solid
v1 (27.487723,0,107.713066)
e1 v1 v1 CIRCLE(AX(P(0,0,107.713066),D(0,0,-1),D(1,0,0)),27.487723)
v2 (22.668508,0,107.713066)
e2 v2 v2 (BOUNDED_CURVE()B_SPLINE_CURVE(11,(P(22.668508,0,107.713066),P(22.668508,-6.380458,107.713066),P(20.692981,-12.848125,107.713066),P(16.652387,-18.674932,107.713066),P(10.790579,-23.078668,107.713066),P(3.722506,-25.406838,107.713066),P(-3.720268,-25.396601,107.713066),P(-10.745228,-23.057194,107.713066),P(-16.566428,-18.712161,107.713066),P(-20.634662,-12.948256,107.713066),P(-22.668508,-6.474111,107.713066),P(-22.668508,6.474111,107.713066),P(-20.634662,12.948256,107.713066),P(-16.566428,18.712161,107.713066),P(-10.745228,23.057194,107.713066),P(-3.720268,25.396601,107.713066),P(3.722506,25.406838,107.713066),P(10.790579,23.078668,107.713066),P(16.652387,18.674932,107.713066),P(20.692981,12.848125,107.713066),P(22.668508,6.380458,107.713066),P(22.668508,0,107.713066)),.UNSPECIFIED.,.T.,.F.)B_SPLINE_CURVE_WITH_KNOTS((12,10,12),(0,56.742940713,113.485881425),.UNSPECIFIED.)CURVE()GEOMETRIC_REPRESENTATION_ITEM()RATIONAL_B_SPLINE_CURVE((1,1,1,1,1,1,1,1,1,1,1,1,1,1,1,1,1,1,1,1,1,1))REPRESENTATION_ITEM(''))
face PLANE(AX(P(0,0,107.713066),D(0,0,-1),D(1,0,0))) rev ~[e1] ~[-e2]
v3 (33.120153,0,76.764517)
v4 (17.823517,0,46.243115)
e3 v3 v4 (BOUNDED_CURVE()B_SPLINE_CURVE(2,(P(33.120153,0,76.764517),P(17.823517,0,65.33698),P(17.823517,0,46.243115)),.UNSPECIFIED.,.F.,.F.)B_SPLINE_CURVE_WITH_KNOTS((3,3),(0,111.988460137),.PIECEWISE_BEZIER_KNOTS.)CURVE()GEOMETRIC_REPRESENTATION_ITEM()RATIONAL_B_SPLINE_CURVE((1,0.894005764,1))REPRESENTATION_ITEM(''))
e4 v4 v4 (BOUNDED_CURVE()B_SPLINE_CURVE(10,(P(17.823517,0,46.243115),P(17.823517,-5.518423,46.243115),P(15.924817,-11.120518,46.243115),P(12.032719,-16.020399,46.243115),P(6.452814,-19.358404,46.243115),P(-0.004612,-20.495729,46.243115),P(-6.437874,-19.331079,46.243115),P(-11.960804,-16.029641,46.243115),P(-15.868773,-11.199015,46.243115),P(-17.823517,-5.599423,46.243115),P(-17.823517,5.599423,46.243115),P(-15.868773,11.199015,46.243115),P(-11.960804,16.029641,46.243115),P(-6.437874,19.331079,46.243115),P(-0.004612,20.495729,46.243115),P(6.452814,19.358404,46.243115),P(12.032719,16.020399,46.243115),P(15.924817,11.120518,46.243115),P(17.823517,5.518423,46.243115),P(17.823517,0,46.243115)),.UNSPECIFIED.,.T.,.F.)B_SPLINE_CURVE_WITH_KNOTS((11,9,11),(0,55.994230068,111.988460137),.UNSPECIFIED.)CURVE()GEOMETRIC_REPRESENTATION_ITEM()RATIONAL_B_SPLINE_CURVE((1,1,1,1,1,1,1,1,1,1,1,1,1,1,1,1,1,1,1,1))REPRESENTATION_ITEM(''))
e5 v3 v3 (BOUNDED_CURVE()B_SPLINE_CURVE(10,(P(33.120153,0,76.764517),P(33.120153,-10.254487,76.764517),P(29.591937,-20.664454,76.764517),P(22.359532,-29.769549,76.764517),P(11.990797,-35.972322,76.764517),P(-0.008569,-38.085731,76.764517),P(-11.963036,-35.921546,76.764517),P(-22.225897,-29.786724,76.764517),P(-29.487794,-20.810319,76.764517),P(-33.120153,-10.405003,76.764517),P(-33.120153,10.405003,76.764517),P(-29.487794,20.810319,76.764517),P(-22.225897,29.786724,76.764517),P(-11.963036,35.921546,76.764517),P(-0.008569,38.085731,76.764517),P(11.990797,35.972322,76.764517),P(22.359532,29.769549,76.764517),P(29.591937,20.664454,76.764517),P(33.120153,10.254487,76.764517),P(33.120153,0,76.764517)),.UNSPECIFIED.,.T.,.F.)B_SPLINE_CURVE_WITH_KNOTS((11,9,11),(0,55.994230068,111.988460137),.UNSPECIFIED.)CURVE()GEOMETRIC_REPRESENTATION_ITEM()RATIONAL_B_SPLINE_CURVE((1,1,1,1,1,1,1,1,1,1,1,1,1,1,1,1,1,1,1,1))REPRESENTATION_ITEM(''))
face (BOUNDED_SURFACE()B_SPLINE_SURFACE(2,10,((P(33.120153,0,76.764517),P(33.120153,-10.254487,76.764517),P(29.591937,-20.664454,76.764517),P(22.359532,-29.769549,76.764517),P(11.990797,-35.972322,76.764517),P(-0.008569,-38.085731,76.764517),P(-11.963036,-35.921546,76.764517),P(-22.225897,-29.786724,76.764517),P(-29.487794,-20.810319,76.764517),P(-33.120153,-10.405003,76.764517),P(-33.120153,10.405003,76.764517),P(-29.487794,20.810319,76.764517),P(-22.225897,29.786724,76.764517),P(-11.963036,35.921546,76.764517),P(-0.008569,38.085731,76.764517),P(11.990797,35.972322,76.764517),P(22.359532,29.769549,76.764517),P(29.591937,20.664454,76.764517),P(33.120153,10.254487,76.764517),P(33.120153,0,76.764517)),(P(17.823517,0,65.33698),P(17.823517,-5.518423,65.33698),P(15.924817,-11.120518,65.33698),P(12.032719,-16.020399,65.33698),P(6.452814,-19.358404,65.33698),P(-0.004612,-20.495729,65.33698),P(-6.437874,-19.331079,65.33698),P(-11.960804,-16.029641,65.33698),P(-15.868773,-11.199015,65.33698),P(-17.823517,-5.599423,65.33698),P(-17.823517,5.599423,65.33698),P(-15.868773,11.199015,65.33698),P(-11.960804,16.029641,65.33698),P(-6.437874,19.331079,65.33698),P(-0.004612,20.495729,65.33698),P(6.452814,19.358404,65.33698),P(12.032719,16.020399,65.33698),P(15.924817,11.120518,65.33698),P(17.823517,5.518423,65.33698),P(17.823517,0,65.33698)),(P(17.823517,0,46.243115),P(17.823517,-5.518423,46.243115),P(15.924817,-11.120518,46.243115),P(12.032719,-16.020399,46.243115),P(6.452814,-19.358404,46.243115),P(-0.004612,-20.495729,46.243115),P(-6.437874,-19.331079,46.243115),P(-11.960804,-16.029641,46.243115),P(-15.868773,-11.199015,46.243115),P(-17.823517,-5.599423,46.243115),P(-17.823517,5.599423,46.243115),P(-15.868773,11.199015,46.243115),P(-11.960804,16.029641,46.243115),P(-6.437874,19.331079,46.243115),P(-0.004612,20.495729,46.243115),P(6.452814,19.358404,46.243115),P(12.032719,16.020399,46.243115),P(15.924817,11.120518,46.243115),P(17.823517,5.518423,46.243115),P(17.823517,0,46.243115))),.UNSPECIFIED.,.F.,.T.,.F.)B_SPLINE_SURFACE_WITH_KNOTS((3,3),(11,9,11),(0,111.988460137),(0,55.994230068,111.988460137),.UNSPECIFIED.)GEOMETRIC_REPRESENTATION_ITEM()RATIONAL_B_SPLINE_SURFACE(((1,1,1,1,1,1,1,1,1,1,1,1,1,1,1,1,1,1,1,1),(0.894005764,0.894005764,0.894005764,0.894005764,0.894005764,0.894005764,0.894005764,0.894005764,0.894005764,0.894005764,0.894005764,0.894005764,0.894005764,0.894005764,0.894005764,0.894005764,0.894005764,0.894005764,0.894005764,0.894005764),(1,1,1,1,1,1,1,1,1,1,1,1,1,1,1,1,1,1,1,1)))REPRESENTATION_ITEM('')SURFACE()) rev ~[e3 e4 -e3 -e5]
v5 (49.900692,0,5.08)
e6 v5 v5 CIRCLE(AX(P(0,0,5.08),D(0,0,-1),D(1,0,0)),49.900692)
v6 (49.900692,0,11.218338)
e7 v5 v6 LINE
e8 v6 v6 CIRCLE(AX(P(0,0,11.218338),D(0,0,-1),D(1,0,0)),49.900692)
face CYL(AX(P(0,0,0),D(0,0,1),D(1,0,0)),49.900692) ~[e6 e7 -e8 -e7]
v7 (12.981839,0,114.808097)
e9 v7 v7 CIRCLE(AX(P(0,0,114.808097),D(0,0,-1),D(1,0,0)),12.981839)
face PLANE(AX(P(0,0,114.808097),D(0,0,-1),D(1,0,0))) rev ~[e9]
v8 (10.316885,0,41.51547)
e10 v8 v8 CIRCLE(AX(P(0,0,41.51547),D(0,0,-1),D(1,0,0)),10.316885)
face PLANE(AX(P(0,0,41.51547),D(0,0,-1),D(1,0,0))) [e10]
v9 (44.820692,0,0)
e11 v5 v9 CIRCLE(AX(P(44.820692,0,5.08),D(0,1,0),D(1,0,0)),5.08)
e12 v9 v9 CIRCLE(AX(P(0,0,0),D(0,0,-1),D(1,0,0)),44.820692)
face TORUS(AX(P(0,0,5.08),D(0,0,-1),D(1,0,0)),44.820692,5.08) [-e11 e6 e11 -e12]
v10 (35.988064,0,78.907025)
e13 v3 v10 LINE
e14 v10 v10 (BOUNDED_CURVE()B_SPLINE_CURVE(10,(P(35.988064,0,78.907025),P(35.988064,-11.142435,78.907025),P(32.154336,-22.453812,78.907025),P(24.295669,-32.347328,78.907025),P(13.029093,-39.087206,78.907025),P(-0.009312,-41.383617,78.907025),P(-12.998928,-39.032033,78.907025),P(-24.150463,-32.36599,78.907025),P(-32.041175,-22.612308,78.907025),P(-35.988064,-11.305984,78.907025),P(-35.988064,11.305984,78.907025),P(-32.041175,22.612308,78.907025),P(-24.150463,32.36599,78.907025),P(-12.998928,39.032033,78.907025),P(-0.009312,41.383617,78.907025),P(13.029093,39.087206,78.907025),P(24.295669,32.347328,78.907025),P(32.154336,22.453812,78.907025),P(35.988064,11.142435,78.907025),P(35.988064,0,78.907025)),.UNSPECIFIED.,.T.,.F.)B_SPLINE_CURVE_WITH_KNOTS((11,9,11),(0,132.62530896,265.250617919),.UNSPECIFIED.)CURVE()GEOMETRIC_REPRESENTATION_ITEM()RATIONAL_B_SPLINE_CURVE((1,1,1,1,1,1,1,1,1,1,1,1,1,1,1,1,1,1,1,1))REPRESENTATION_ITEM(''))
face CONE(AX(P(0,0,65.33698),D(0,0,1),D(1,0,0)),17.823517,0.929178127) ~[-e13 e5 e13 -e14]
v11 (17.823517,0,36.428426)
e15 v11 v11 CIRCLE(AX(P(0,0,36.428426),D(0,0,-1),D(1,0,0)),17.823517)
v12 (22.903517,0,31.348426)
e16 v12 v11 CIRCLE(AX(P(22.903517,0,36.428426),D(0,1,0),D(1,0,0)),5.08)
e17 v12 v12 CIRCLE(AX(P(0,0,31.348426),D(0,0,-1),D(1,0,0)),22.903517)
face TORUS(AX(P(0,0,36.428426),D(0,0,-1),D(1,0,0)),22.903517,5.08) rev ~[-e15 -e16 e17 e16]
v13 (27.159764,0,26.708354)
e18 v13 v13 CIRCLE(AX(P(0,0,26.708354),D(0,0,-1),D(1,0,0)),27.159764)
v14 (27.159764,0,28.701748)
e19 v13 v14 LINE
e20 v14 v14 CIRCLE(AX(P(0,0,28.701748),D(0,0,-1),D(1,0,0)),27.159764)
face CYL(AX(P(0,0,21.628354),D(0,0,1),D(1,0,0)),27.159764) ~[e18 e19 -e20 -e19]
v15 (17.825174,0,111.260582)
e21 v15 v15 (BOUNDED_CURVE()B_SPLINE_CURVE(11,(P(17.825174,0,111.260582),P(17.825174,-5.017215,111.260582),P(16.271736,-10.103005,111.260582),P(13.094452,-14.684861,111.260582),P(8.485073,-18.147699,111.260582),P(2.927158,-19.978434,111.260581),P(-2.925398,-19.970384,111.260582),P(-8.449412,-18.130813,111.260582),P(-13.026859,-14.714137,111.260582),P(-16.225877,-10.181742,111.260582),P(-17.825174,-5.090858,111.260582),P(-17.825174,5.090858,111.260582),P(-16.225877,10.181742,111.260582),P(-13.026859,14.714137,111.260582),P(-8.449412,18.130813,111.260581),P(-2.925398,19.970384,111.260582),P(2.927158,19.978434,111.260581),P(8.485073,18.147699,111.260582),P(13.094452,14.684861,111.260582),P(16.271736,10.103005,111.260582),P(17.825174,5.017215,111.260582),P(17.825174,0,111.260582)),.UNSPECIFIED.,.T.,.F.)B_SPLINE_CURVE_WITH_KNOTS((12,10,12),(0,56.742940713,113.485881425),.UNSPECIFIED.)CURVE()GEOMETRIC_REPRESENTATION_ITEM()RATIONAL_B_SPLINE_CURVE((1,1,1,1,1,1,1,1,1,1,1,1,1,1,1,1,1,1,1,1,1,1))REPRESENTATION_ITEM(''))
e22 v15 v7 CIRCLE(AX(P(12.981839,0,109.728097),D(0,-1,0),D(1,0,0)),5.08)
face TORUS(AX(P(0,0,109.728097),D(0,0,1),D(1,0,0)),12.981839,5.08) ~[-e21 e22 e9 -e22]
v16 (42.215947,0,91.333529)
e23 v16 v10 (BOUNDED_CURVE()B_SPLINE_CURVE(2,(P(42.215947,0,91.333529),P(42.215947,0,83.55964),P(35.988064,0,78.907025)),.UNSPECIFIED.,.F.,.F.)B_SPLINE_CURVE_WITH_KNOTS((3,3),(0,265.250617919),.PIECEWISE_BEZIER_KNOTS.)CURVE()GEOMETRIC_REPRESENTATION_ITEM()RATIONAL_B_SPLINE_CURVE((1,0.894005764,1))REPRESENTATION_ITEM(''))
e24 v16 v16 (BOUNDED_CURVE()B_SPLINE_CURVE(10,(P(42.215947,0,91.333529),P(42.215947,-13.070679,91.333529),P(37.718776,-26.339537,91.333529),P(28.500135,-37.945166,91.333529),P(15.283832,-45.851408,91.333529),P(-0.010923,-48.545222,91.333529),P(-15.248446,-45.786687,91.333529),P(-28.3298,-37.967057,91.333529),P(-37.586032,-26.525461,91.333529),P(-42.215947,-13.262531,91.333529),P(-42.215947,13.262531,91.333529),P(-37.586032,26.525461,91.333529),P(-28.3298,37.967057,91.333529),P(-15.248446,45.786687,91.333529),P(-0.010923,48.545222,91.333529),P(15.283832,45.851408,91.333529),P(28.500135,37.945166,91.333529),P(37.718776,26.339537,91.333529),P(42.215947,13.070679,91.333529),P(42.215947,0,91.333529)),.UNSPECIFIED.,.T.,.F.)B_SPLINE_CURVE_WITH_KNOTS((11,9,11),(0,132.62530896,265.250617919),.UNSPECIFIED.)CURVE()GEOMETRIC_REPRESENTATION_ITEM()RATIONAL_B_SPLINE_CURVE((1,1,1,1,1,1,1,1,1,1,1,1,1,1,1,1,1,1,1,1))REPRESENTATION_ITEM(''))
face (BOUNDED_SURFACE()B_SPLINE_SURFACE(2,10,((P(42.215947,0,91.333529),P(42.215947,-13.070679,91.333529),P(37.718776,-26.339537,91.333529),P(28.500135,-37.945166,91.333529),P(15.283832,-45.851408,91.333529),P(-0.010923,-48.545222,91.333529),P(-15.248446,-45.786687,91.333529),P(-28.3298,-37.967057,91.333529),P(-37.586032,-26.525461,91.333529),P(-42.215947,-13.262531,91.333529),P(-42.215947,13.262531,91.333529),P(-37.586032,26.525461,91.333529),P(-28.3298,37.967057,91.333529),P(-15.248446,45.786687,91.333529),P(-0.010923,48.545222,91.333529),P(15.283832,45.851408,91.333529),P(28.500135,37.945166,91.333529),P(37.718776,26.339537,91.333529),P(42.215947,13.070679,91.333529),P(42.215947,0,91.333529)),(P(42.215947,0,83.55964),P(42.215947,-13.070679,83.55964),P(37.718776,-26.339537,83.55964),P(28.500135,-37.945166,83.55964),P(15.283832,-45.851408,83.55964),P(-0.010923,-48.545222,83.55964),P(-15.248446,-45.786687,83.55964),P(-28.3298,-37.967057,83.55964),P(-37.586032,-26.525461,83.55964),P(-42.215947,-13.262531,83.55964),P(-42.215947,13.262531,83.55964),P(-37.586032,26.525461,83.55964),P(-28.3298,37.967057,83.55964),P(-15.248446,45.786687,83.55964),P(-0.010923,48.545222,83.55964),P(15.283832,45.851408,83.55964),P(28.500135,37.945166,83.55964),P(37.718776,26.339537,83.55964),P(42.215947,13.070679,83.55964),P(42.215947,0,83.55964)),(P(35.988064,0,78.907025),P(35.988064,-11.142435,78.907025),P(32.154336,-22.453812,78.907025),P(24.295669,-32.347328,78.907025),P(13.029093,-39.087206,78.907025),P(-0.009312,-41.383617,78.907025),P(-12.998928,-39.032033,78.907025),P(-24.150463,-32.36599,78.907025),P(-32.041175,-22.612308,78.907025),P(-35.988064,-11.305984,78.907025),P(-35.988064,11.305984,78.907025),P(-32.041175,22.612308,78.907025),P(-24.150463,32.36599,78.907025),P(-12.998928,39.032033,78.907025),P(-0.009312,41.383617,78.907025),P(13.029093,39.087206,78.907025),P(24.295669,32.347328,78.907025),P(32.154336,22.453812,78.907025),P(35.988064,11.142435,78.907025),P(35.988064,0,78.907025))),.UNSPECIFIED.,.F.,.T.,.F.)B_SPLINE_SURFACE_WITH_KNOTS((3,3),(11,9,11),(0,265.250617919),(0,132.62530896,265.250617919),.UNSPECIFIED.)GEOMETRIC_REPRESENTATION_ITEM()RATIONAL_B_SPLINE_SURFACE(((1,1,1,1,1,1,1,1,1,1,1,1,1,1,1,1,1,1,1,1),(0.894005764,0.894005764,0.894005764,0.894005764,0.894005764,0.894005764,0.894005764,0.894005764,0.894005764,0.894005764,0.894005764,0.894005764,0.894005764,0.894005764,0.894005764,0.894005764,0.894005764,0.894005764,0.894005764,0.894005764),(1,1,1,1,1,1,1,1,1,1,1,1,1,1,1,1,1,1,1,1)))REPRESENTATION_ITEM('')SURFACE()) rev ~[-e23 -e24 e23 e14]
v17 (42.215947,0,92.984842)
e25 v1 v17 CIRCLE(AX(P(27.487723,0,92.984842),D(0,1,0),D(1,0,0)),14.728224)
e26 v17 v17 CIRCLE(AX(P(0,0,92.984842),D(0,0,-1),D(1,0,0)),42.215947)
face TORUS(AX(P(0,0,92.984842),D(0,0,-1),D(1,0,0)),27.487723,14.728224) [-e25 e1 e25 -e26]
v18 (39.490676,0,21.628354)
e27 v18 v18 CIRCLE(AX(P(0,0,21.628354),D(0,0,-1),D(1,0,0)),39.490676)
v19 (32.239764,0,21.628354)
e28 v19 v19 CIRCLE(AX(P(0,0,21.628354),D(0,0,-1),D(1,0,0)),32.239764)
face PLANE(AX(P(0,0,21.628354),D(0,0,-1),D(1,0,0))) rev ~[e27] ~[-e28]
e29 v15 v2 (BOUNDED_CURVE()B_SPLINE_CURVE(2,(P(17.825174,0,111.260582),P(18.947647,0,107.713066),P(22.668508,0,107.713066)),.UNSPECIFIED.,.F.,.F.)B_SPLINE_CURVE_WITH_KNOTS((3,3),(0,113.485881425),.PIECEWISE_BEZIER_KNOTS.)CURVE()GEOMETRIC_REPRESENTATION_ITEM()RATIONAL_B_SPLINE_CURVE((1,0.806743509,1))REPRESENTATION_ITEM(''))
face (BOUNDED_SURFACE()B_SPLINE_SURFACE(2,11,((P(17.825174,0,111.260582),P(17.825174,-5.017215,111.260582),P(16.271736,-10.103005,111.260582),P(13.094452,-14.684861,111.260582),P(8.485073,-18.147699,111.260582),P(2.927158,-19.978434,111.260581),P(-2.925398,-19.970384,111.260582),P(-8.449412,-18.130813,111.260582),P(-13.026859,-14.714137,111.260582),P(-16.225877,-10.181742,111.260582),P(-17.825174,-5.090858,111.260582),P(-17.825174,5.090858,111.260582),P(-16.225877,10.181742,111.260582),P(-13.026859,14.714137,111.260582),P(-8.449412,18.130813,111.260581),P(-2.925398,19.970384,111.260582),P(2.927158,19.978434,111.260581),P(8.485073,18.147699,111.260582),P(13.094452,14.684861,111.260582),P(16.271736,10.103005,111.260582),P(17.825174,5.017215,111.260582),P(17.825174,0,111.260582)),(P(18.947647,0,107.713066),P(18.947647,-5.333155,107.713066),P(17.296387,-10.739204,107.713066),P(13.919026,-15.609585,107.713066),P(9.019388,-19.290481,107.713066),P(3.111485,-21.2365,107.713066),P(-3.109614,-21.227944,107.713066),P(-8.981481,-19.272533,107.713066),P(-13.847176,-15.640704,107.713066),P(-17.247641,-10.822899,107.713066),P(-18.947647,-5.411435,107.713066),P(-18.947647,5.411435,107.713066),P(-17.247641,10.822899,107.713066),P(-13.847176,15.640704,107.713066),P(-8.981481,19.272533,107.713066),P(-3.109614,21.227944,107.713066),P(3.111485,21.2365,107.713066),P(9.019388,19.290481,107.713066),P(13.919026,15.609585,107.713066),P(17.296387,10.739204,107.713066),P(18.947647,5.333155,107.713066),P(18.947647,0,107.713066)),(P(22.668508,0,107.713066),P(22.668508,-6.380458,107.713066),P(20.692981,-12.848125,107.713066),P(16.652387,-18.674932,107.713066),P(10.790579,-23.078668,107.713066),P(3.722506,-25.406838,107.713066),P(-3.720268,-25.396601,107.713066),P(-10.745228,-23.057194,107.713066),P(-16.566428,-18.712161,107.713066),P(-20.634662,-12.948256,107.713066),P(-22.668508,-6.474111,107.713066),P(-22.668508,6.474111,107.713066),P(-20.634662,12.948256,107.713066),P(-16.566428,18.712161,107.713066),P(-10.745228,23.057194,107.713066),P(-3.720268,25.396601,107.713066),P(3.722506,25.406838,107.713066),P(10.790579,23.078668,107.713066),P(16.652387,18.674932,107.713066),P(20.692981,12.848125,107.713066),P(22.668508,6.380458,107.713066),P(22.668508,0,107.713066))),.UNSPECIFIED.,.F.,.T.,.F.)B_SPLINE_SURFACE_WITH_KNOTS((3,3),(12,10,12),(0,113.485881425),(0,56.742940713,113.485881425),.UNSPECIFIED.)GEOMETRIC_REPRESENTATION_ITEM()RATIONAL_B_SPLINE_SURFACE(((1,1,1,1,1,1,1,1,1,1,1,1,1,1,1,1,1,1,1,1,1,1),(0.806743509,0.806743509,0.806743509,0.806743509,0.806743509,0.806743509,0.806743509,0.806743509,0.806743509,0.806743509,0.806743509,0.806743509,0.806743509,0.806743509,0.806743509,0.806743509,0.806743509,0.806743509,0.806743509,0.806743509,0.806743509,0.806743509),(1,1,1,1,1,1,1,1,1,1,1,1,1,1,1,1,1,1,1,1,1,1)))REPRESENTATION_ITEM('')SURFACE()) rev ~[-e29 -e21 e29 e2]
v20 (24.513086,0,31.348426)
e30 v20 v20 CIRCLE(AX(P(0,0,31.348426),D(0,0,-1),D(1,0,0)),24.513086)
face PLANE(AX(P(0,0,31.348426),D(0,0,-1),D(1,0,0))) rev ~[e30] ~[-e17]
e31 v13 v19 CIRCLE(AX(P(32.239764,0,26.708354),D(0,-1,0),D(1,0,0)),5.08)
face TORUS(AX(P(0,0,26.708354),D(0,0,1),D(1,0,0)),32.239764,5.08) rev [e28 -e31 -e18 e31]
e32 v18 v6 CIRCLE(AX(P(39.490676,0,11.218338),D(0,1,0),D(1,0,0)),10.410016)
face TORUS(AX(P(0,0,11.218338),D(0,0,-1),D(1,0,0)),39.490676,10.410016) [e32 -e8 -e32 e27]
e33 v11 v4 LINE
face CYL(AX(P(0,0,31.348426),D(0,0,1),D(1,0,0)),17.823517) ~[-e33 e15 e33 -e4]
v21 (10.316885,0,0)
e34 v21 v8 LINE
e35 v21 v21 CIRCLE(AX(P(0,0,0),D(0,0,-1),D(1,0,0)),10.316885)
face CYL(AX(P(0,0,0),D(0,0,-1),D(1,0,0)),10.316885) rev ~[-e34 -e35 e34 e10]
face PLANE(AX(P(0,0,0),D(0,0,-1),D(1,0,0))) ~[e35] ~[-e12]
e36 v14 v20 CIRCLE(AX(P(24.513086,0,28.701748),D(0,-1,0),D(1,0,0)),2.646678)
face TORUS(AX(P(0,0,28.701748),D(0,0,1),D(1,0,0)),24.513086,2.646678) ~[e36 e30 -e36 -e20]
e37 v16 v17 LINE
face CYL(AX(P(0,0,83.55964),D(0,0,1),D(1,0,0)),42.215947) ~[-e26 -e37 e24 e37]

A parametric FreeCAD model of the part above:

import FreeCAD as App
import Part
import Sketcher

V = App.Vector


def edges_at(feature, points):
    """Names of the edges that pass closest to the given points."""
    edges = feature.Shape.Edges
    near = lambda p: min(range(len(edges)), key=lambda i: edges[i].distToShape(Part.Vertex(*p))[0])
    return sorted({f"Edge{near(p) + 1}" for p in points})

doc = App.newDocument("Part")
params = doc.addObject("Spreadsheet::Sheet", "Params")
for row, (alias, value) in enumerate([
    ("revolution_angle", "360 deg"),
    ("fillet_radius", "0.2 in"),
    ("fillet2_radius", "0.2 in"),
    ("fillet3_radius", "14.728224 mm"),
    ("fillet4_radius", "15.511253 mm"),
    ("fillet5_radius", "38.098019 mm"),
    ("fillet6_radius", "0.2 in"),
    ("fillet7_radius", "0.1041999 in"),
    ("fillet8_radius", "0.2 in"),
    ("fillet9_radius", "10.410016 mm"),
    ("fillet10_radius", "0.2 in"),
    ("pocket1_length", "41.51547 mm"),
], start=1):
    params.set(f"A{row}", alias)
    params.set(f"B{row}", "=" + value)
    params.setAlias(f"B{row}", alias)

body = doc.addObject("PartDesign::Body", "Body")

# Sketch on XZ plane
sketch1 = body.newObject("Sketcher::SketchObject", "Sketch")
sketch1.AttachmentSupport = (doc.getObject("XZ_Plane"), [""])
sketch1.MapMode = "FlatFace"
sketch1.addGeometry([
    Part.LineSegment(V(0, 115, 0), V(0, 0, 0)),  # 0
    Part.LineSegment(V(0, 0, 0), V(50, 0, 0)),  # 1
    Part.LineSegment(V(50, 0, 0), V(50, 22, 0)),  # 2
    Part.LineSegment(V(50, 22, 0), V(27, 22, 0)),  # 3
    Part.LineSegment(V(27, 22, 0), V(27, 31, 0)),  # 4
    Part.LineSegment(V(27, 31, 0), V(18, 31, 0)),  # 5
    Part.LineSegment(V(18, 31, 0), V(18, 65, 0)),  # 6
    Part.LineSegment(V(18, 65, 0), V(42, 84, 0)),  # 7
    Part.LineSegment(V(42, 84, 0), V(42, 108, 0)),  # 8
    Part.LineSegment(V(42, 108, 0), V(18, 108, 0)),  # 9
    Part.LineSegment(V(18, 108, 0), V(18, 115, 0)),  # 10
    Part.LineSegment(V(18, 115, 0), V(0, 115, 0)),  # 11
], False)
sketch1.addConstraint([
    Sketcher.Constraint("Coincident", 0, 2, 1, 1),
    Sketcher.Constraint("Coincident", 1, 2, 2, 1),
    Sketcher.Constraint("Coincident", 2, 2, 3, 1),
    Sketcher.Constraint("Coincident", 3, 2, 4, 1),
    Sketcher.Constraint("Coincident", 4, 2, 5, 1),
    Sketcher.Constraint("Coincident", 5, 2, 6, 1),
    Sketcher.Constraint("Coincident", 6, 2, 7, 1),
    Sketcher.Constraint("Coincident", 7, 2, 8, 1),
    Sketcher.Constraint("Coincident", 8, 2, 9, 1),
    Sketcher.Constraint("Coincident", 9, 2, 10, 1),
    Sketcher.Constraint("Coincident", 10, 2, 11, 1),
    Sketcher.Constraint("Coincident", 11, 2, 0, 1),
    Sketcher.Constraint("Vertical", 0),
    Sketcher.Constraint("Horizontal", 1),
    Sketcher.Constraint("Vertical", 2),
    Sketcher.Constraint("Horizontal", 3),
    Sketcher.Constraint("Vertical", 4),
    Sketcher.Constraint("Horizontal", 5),
    Sketcher.Constraint("Vertical", 6),
    Sketcher.Constraint("Vertical", 8),
    Sketcher.Constraint("Horizontal", 9),
    Sketcher.Constraint("Vertical", 10),
    Sketcher.Constraint("Horizontal", 11),
    Sketcher.Constraint("Coincident", 0, 2, -1, 1),
    Sketcher.Constraint("DistanceX", 3, 2, 3, 1, 22.740928),
    Sketcher.Constraint("DistanceX", 9, 2, 9, 1, 24.154108),
    Sketcher.Constraint("DistanceX", 11, 2, 11, 1, 18.061839),
    Sketcher.Constraint("DistanceY", 4, 1, 4, 2, 9.720072),
    Sketcher.Constraint("DistanceY", 10, 1, 10, 2, 7.095031),
    Sketcher.Constraint("DistanceX", 1, 1, 1, 2, 49.900692),
    Sketcher.Constraint("DistanceX", 5, 2, 5, 1, 9.336247),
    Sketcher.Constraint("DistanceY", 0, 2, 0, 1, 114.808097),
    Sketcher.Constraint("DistanceY", 2, 1, 2, 2, 21.628354),
    Sketcher.Constraint("DistanceY", 6, 1, 6, 2, 33.988554),
    Sketcher.Constraint("DistanceY", 8, 1, 8, 2, 24.153426),
])
revolution = body.newObject("PartDesign::Revolution", "Revolution")
revolution.Profile = sketch1
revolution.ReferenceAxis = (sketch1, ["V_Axis"])
revolution.setExpression("Angle", "Params.revolution_angle")
doc.recompute()

fillet = body.newObject("PartDesign::Fillet", "Fillet")
fillet.Base = (revolution, edges_at(revolution, [(-18.062, 0, 114.808)]))
fillet.setExpression("Radius", "Params.fillet_radius")
doc.recompute()

fillet2 = body.newObject("PartDesign::Fillet", "Fillet001")
fillet2.Base = (fillet, edges_at(fillet, [(-18.062, 0, 107.713)]))
fillet2.setExpression("Radius", "Params.fillet2_radius")
doc.recompute()

fillet3 = body.newObject("PartDesign::Fillet", "Fillet002")
fillet3.Base = (fillet2, edges_at(fillet2, [(-42.216, 0, 107.713)]))
fillet3.setExpression("Radius", "Params.fillet3_radius")
doc.recompute()

fillet4 = body.newObject("PartDesign::Fillet", "Fillet003")
fillet4.Base = (fillet3, edges_at(fillet3, [(-42.216, 0, 83.56)]))
fillet4.setExpression("Radius", "Params.fillet4_radius")
doc.recompute()

fillet5 = body.newObject("PartDesign::Fillet", "Fillet004")
fillet5.Base = (fillet4, edges_at(fillet4, [(-17.824, 0, 65.337)]))
fillet5.setExpression("Radius", "Params.fillet5_radius")
doc.recompute()

fillet6 = body.newObject("PartDesign::Fillet", "Fillet005")
fillet6.Base = (fillet5, edges_at(fillet5, [(-27.16, 0, 21.628)]))
fillet6.setExpression("Radius", "Params.fillet6_radius")
doc.recompute()

fillet7 = body.newObject("PartDesign::Fillet", "Fillet006")
fillet7.Base = (fillet6, edges_at(fillet6, [(-27.16, 0, 31.348)]))
fillet7.setExpression("Radius", "Params.fillet7_radius")
doc.recompute()

fillet8 = body.newObject("PartDesign::Fillet", "Fillet007")
fillet8.Base = (fillet7, edges_at(fillet7, [(-17.824, 0, 31.348)]))
fillet8.setExpression("Radius", "Params.fillet8_radius")
doc.recompute()

fillet9 = body.newObject("PartDesign::Fillet", "Fillet008")
fillet9.Base = (fillet8, edges_at(fillet8, [(-49.901, 0, 21.628)]))
fillet9.setExpression("Radius", "Params.fillet9_radius")
doc.recompute()

fillet10 = body.newObject("PartDesign::Fillet", "Fillet009")
fillet10.Base = (fillet9, edges_at(fillet9, [(-49.901, 0, 0)]))
fillet10.setExpression("Radius", "Params.fillet10_radius")

# Sketch on XY plane
sketch2 = body.newObject("Sketcher::SketchObject", "Sketch001")
sketch2.AttachmentSupport = (doc.getObject("XY_Plane"), [""])
sketch2.MapMode = "FlatFace"
sketch2.addGeometry(Part.Circle(V(0, 0, 0), V(0, 0, 1), 10), False)
sketch2.addConstraint([
    Sketcher.Constraint("Coincident", 0, 3, -1, 1),
    Sketcher.Constraint("Diameter", 0, 20.63377),
])
pocket1 = body.newObject("PartDesign::Pocket", "Pocket")
pocket1.Profile = sketch2
pocket1.setExpression("Length", "Params.pocket1_length")
pocket1.Reversed = True

doc.recompute()
